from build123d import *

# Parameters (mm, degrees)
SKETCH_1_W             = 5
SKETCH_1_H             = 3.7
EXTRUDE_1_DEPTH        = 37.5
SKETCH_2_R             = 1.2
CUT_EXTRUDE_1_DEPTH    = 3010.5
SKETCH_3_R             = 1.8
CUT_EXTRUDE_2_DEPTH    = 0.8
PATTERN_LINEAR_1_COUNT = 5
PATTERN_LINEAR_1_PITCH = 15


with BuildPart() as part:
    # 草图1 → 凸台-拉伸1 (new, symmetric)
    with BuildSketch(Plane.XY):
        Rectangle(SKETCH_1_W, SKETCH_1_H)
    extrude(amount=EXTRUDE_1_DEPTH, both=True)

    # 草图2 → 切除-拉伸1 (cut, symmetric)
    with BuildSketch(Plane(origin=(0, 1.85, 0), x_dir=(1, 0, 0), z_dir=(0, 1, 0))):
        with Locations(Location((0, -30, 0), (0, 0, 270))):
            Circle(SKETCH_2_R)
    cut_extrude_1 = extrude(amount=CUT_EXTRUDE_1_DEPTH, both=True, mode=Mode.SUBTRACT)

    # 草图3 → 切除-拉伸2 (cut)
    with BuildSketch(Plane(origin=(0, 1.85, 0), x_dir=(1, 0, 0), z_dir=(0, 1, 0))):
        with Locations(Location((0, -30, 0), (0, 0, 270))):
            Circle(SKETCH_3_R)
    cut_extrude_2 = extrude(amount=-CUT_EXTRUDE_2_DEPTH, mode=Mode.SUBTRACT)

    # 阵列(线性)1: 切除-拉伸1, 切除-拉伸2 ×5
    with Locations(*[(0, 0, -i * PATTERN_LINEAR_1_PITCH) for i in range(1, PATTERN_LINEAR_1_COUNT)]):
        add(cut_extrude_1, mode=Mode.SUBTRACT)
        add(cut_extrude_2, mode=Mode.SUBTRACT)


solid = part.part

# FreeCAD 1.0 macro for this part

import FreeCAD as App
import Part
import Sketcher
Q = App.Units.Quantity


def add_polygon(sketch, points):
    """Adds a closed chain of lines whose ends are joined by coincident constraints."""
    first, n = sketch.GeometryCount, len(points)
    for a, b in zip(points, points[1:] + points[:1]):
        sketch.addGeometry(Part.LineSegment(App.Vector(*a, 0), App.Vector(*b, 0)), False)
    for i in range(n):
        sketch.addConstraint(Sketcher.Constraint("Coincident", first + i, 2, first + (i + 1) % n, 1))

doc = App.newDocument("Part")
body = doc.addObject("PartDesign::Body", "Body")

sketch1 = body.newObject("Sketcher::SketchObject", "Sketch")
sketch1.AttachmentSupport = (doc.getObject("XY_Plane"), [""])
sketch1.MapMode = "FlatFace"
add_polygon(sketch1, [(-2.5, 1.85), (-2.5, -1.85), (2.5, -1.85), (2.5, 1.85)])
sketch1.addConstraint(Sketcher.Constraint("Vertical", 0))
sketch1.addConstraint(Sketcher.Constraint("Horizontal", 1))
sketch1.addConstraint(Sketcher.Constraint("Vertical", 2))
sketch1.addConstraint(Sketcher.Constraint("Horizontal", 3))
sketch1.addConstraint(Sketcher.Constraint("Symmetric", 0, 2, 2, 2, -1, 1))
sketch1.addConstraint(Sketcher.Constraint("DistanceX", 1, 1, 1, 2, Q("5 mm")))
sketch1.addConstraint(Sketcher.Constraint("DistanceY", 0, 2, 0, 1, Q("3.7 mm")))
pad1 = body.newObject("PartDesign::Pad", "Pad")
pad1.Profile = sketch1
pad1.Length = 75
pad1.Midplane = True

sketch2 = body.newObject("Sketcher::SketchObject", "Sketch001")
sketch2.AttachmentSupport = (doc.getObject("XZ_Plane"), [""])
sketch2.MapMode = "FlatFace"
sketch2.AttachmentOffset = App.Placement(App.Vector(0, 0, -1.85), App.Rotation())
sketch2.addGeometry(Part.Circle(App.Vector(0, 30, 0), App.Vector(0, 0, 1), 1.2), False)
sketch2.addConstraint(Sketcher.Constraint("PointOnObject", 0, 3, -2))
sketch2.addConstraint(Sketcher.Constraint("Diameter", 0, Q("2.4 mm")))
sketch2.addConstraint(Sketcher.Constraint("DistanceY", -1, 1, 0, 3, Q("30 mm")))
pocket1 = body.newObject("PartDesign::Pocket", "Pocket")
pocket1.Profile = sketch2
pocket1.Length = 6021
pocket1.Midplane = True

sketch3 = body.newObject("Sketcher::SketchObject", "Sketch002")
sketch3.AttachmentSupport = (doc.getObject("XZ_Plane"), [""])
sketch3.MapMode = "FlatFace"
sketch3.AttachmentOffset = App.Placement(App.Vector(0, 0, -1.85), App.Rotation())
sketch3.addGeometry(Part.Circle(App.Vector(0, 30, 0), App.Vector(0, 0, 1), 1.8), False)
sketch3.addConstraint(Sketcher.Constraint("PointOnObject", 0, 3, -2))
sketch3.addConstraint(Sketcher.Constraint("Diameter", 0, Q("3.6 mm")))
sketch3.addConstraint(Sketcher.Constraint("DistanceY", -1, 1, 0, 3, Q("30 mm")))
pocket2 = body.newObject("PartDesign::Pocket", "Pocket001")
pocket2.Profile = sketch3
pocket2.Length = 0.8
pocket2.Reversed = True
doc.recompute()

linearpattern = body.newObject("PartDesign::LinearPattern", "LinearPattern")
linearpattern.Originals = [pocket1, pocket2]
linearpattern.Direction = (doc.getObject("Z_Axis"), [""])
linearpattern.Mode = "offset"
linearpattern.Offset = 15
linearpattern.Occurrences = 5
linearpattern.Reversed = True
body.Tip = linearpattern

doc.recompute()
